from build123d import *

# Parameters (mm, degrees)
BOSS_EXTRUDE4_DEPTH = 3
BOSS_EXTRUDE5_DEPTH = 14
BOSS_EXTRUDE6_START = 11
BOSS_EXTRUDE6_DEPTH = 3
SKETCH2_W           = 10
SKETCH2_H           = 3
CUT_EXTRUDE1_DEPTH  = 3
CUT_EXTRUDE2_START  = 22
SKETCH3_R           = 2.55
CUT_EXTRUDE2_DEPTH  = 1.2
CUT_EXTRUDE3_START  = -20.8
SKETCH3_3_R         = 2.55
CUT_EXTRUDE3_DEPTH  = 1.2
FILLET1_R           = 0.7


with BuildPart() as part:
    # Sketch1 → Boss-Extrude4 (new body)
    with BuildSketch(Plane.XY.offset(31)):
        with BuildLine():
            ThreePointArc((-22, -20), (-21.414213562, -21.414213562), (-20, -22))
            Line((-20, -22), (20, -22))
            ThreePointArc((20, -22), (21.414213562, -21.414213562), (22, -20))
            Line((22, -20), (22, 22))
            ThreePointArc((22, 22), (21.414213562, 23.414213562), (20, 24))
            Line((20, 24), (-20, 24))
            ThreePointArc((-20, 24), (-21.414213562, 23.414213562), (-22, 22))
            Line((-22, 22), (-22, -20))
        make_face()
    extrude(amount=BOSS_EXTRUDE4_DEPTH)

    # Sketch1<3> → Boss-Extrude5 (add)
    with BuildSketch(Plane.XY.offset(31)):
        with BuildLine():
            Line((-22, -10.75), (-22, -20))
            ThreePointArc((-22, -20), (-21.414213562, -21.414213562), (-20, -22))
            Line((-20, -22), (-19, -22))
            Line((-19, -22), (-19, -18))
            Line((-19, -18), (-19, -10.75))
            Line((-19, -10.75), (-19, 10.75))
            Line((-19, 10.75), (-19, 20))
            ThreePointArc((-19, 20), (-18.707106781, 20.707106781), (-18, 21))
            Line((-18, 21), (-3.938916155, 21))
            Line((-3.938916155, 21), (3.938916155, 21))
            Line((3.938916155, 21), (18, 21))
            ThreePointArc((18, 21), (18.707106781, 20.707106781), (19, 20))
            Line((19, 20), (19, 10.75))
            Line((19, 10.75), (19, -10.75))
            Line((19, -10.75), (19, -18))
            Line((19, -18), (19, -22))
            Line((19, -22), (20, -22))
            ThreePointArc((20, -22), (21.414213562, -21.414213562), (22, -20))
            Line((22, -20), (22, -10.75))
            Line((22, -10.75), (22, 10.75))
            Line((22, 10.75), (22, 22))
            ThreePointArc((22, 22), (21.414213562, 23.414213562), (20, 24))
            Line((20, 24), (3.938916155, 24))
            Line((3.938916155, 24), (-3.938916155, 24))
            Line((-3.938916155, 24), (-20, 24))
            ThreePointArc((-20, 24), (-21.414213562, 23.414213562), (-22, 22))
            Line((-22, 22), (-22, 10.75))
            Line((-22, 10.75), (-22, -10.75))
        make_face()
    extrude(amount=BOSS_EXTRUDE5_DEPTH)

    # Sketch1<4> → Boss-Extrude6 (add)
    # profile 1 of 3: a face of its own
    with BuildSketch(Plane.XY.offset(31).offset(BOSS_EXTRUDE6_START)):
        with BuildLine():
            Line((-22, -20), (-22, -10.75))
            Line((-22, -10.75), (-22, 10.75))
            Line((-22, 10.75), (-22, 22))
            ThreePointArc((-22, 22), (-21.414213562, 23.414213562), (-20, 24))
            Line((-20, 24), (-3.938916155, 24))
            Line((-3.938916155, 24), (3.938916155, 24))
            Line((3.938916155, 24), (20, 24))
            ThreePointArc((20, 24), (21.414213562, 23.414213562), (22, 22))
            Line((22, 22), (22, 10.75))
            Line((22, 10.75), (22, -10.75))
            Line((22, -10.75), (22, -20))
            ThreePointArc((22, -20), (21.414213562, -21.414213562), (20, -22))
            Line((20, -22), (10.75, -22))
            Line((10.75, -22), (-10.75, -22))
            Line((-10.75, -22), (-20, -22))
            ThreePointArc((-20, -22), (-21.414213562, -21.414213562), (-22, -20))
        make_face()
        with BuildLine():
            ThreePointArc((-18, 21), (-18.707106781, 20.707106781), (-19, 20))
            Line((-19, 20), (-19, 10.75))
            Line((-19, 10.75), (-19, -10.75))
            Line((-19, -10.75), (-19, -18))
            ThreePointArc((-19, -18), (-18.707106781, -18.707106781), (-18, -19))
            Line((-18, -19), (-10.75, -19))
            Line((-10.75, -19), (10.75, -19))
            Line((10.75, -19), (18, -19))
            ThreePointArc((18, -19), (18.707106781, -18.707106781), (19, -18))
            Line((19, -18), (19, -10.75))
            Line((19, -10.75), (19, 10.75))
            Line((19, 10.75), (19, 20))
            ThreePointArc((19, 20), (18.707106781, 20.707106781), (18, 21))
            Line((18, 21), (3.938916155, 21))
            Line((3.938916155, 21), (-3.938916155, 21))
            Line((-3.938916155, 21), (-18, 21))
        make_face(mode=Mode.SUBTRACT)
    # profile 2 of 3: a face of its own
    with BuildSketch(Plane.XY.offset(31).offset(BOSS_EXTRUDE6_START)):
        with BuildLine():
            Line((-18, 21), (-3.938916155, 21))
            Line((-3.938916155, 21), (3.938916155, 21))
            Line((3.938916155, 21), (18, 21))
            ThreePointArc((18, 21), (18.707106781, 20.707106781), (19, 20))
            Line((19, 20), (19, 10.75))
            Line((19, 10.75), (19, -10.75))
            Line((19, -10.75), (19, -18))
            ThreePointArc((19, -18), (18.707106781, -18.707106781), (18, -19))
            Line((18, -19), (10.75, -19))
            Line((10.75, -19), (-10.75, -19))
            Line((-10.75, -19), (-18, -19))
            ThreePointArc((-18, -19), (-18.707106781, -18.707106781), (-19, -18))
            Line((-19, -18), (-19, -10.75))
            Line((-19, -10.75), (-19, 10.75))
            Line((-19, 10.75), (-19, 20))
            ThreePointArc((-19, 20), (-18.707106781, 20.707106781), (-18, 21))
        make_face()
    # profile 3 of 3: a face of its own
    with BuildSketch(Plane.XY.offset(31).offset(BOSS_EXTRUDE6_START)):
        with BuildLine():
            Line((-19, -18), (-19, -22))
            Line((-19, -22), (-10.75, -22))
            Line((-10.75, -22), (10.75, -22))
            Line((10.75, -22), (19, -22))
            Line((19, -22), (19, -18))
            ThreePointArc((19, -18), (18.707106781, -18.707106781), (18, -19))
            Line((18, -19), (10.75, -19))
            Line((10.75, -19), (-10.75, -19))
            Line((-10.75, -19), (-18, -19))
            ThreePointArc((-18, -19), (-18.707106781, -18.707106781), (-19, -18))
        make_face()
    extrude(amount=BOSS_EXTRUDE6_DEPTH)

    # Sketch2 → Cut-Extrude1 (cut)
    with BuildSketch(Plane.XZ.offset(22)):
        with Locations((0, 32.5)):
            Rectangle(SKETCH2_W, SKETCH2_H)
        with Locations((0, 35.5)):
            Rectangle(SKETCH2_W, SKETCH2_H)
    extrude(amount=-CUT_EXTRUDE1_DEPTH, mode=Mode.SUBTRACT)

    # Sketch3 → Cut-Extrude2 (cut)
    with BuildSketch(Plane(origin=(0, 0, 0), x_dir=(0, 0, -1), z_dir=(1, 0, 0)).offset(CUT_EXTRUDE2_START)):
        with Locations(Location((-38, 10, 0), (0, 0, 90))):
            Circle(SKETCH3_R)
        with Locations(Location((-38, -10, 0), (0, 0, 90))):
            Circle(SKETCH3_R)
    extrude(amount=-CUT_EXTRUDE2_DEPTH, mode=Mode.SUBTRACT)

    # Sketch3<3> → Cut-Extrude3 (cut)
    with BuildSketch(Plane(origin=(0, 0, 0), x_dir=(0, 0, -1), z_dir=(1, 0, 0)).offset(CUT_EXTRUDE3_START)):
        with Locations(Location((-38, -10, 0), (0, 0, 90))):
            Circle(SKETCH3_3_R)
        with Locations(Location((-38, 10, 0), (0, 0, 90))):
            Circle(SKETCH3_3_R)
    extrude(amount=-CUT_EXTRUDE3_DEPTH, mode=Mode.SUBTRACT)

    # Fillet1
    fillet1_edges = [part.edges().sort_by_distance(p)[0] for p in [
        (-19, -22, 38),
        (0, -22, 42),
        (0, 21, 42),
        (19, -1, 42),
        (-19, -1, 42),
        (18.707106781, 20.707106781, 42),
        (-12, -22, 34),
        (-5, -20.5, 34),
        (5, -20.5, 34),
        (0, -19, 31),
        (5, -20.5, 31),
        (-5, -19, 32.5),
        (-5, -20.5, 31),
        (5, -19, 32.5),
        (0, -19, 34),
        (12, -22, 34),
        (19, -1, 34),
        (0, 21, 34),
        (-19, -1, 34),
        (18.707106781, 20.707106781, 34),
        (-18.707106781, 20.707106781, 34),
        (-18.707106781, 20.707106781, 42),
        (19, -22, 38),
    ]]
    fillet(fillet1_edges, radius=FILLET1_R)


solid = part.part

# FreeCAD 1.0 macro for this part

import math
import FreeCAD as App
import Part
import Sketcher


def edges_at(feature, points):
    """Names of the edges that pass closest to the given points."""
    edges = feature.Shape.Edges
    near = lambda p: min(range(len(edges)), key=lambda i: edges[i].distToShape(Part.Vertex(*p))[0])
    return sorted({f"Edge{near(p) + 1}" for p in points})


def add_polygon(sketch, points):
    """Adds a closed chain of lines whose ends are joined by coincident constraints."""
    first, n = sketch.GeometryCount, len(points)
    for a, b in zip(points, points[1:] + points[:1]):
        sketch.addGeometry(Part.LineSegment(App.Vector(*a, 0), App.Vector(*b, 0)), False)
    for i in range(n):
        sketch.addConstraint(Sketcher.Constraint("Coincident", first + i, 2, first + (i + 1) % n, 1))

doc = App.newDocument("Part")
body = doc.addObject("PartDesign::Body", "Body")

sketch1 = body.newObject("Sketcher::SketchObject", "Sketch")
sketch1.AttachmentSupport = (doc.getObject("XY_Plane"), [""])
sketch1.MapMode = "FlatFace"
sketch1.AttachmentOffset = App.Placement(App.Vector(0, 0, 31), App.Rotation())
sketch1.addGeometry([
    Part.ArcOfCircle(Part.Circle(App.Vector(-20, -20, 0), App.Vector(0, 0, 1), 2), math.radians(-180), math.radians(-90)),
    Part.LineSegment(App.Vector(-20, -22, 0), App.Vector(20, -22, 0)),
    Part.ArcOfCircle(Part.Circle(App.Vector(20, -20, 0), App.Vector(0, 0, 1), 2), math.radians(-90), math.radians(0)),
    Part.LineSegment(App.Vector(22, -20, 0), App.Vector(22, 22, 0)),
    Part.ArcOfCircle(Part.Circle(App.Vector(20, 22, 0), App.Vector(0, 0, 1), 2), math.radians(0), math.radians(90)),
    Part.LineSegment(App.Vector(20, 24, 0), App.Vector(-20, 24, 0)),
    Part.ArcOfCircle(Part.Circle(App.Vector(-20, 22, 0), App.Vector(0, 0, 1), 2), math.radians(90), math.radians(180)),
    Part.LineSegment(App.Vector(-22, 22, 0), App.Vector(-22, -20, 0)),
], False)
sketch1.addConstraint([
    Sketcher.Constraint("Tangent", 0, 2, 1, 1),
    Sketcher.Constraint("Tangent", 1, 2, 2, 1),
    Sketcher.Constraint("Tangent", 2, 2, 3, 1),
    Sketcher.Constraint("Tangent", 3, 2, 4, 1),
    Sketcher.Constraint("Tangent", 4, 2, 5, 1),
    Sketcher.Constraint("Tangent", 5, 2, 6, 1),
    Sketcher.Constraint("Tangent", 6, 2, 7, 1),
    Sketcher.Constraint("Tangent", 7, 2, 0, 1),
    Sketcher.Constraint("Horizontal", 1),
    Sketcher.Constraint("Vertical", 3),
    Sketcher.Constraint("Horizontal", 5),
    Sketcher.Constraint("Vertical", 7),
    Sketcher.Constraint("Equal", 0, 2),
    Sketcher.Constraint("Equal", 2, 4),
    Sketcher.Constraint("Equal", 4, 6),
    Sketcher.Constraint("Radius", 0, 2.0),
    Sketcher.Constraint("DistanceX", 1, 1, 1, 2, 40.0),
    Sketcher.Constraint("DistanceY", 3, 1, 3, 2, 42.0),
    Sketcher.Constraint("DistanceX", 0, 3, -1, 1, 20.0),
    Sketcher.Constraint("DistanceY", 0, 3, -1, 1, 20.0),
])
pad1 = body.newObject("PartDesign::Pad", "Pad")
pad1.Profile = sketch1
pad1.Length = 3

sketch2 = body.newObject("Sketcher::SketchObject", "Sketch001")
sketch2.AttachmentSupport = (doc.getObject("XY_Plane"), [""])
sketch2.MapMode = "FlatFace"
sketch2.AttachmentOffset = App.Placement(App.Vector(0, 0, 31), App.Rotation())
sketch2.addGeometry([
    Part.ArcOfCircle(Part.Circle(App.Vector(-20, -20, 0), App.Vector(0, 0, 1), 2), math.radians(-180), math.radians(-90)),
    Part.LineSegment(App.Vector(-20, -22, 0), App.Vector(-19, -22, 0)),
    Part.LineSegment(App.Vector(-19, -22, 0), App.Vector(-19, 20, 0)),
    Part.ArcOfCircle(Part.Circle(App.Vector(-18, 20, 0), App.Vector(0, 0, 1), 1), math.radians(90), math.radians(180)),
    Part.LineSegment(App.Vector(-18, 21, 0), App.Vector(18, 21, 0)),
    Part.ArcOfCircle(Part.Circle(App.Vector(18, 20, 0), App.Vector(0, 0, 1), 1), math.radians(0), math.radians(90)),
    Part.LineSegment(App.Vector(19, 20, 0), App.Vector(19, -22, 0)),
    Part.LineSegment(App.Vector(19, -22, 0), App.Vector(20, -22, 0)),
    Part.ArcOfCircle(Part.Circle(App.Vector(20, -20, 0), App.Vector(0, 0, 1), 2), math.radians(-90), math.radians(0)),
    Part.LineSegment(App.Vector(22, -20, 0), App.Vector(22, 22, 0)),
    Part.ArcOfCircle(Part.Circle(App.Vector(20, 22, 0), App.Vector(0, 0, 1), 2), math.radians(0), math.radians(90)),
    Part.LineSegment(App.Vector(20, 24, 0), App.Vector(-20, 24, 0)),
    Part.ArcOfCircle(Part.Circle(App.Vector(-20, 22, 0), App.Vector(0, 0, 1), 2), math.radians(90), math.radians(180)),
    Part.LineSegment(App.Vector(-22, 22, 0), App.Vector(-22, -20, 0)),
], False)
sketch2.addConstraint([
    Sketcher.Constraint("Tangent", 0, 2, 1, 1),
    Sketcher.Constraint("Coincident", 1, 2, 2, 1),
    Sketcher.Constraint("Tangent", 2, 2, 3, 2),
    Sketcher.Constraint("Tangent", 3, 1, 4, 1),
    Sketcher.Constraint("Tangent", 4, 2, 5, 2),
    Sketcher.Constraint("Tangent", 5, 1, 6, 1),
    Sketcher.Constraint("Coincident", 6, 2, 7, 1),
    Sketcher.Constraint("Tangent", 7, 2, 8, 1),
    Sketcher.Constraint("Tangent", 8, 2, 9, 1),
    Sketcher.Constraint("Tangent", 9, 2, 10, 1),
    Sketcher.Constraint("Tangent", 10, 2, 11, 1),
    Sketcher.Constraint("Tangent", 11, 2, 12, 1),
    Sketcher.Constraint("Tangent", 12, 2, 13, 1),
    Sketcher.Constraint("Tangent", 13, 2, 0, 1),
    Sketcher.Constraint("Horizontal", 1),
    Sketcher.Constraint("Vertical", 2),
    Sketcher.Constraint("Horizontal", 4),
    Sketcher.Constraint("Vertical", 6),
    Sketcher.Constraint("Horizontal", 7),
    Sketcher.Constraint("Vertical", 9),
    Sketcher.Constraint("Horizontal", 11),
    Sketcher.Constraint("Vertical", 13),
    Sketcher.Constraint("Equal", 3, 5),
    Sketcher.Constraint("Equal", 0, 8),
    Sketcher.Constraint("Equal", 8, 10),
    Sketcher.Constraint("Equal", 10, 12),
    Sketcher.Constraint("Symmetric", 0, 3, 8, 3, -2),
    Sketcher.Constraint("Equal", 1, 7),
    Sketcher.Constraint("Equal", 6, 9),
    Sketcher.Constraint("Radius", 0, 2.0),
    Sketcher.Constraint("Radius", 3, 1.0),
    Sketcher.Constraint("DistanceX", 1, 1, 1, 2, 1.0),
    Sketcher.Constraint("DistanceX", 4, 1, 4, 2, 36.0),
    Sketcher.Constraint("DistanceY", 2, 1, 2, 2, 42.0),
    Sketcher.Constraint("DistanceY", 0, 3, -1, 1, 20.0),
])
pad2 = body.newObject("PartDesign::Pad", "Pad001")
pad2.Profile = sketch2
pad2.Length = 14

sketch3 = body.newObject("Sketcher::SketchObject", "Sketch002")
sketch3.AttachmentSupport = (doc.getObject("XY_Plane"), [""])
sketch3.MapMode = "FlatFace"
sketch3.AttachmentOffset = App.Placement(App.Vector(0, 0, 42), App.Rotation())
sketch3.addGeometry([
    Part.ArcOfCircle(Part.Circle(App.Vector(-20, -20, 0), App.Vector(0, 0, 1), 2), math.radians(-180), math.radians(-90)),
    Part.LineSegment(App.Vector(-20, -22, 0), App.Vector(20, -22, 0)),
    Part.ArcOfCircle(Part.Circle(App.Vector(20, -20, 0), App.Vector(0, 0, 1), 2), math.radians(-90), math.radians(0)),
    Part.LineSegment(App.Vector(22, -20, 0), App.Vector(22, 22, 0)),
    Part.ArcOfCircle(Part.Circle(App.Vector(20, 22, 0), App.Vector(0, 0, 1), 2), math.radians(0), math.radians(90)),
    Part.LineSegment(App.Vector(20, 24, 0), App.Vector(-20, 24, 0)),
    Part.ArcOfCircle(Part.Circle(App.Vector(-20, 22, 0), App.Vector(0, 0, 1), 2), math.radians(90), math.radians(180)),
    Part.LineSegment(App.Vector(-22, 22, 0), App.Vector(-22, -20, 0)),
], False)
sketch3.addConstraint([
    Sketcher.Constraint("Tangent", 0, 2, 1, 1),
    Sketcher.Constraint("Tangent", 1, 2, 2, 1),
    Sketcher.Constraint("Tangent", 2, 2, 3, 1),
    Sketcher.Constraint("Tangent", 3, 2, 4, 1),
    Sketcher.Constraint("Tangent", 4, 2, 5, 1),
    Sketcher.Constraint("Tangent", 5, 2, 6, 1),
    Sketcher.Constraint("Tangent", 6, 2, 7, 1),
    Sketcher.Constraint("Tangent", 7, 2, 0, 1),
    Sketcher.Constraint("Horizontal", 1),
    Sketcher.Constraint("Vertical", 3),
    Sketcher.Constraint("Horizontal", 5),
    Sketcher.Constraint("Vertical", 7),
    Sketcher.Constraint("Equal", 0, 2),
    Sketcher.Constraint("Equal", 2, 4),
    Sketcher.Constraint("Equal", 4, 6),
    Sketcher.Constraint("Radius", 0, 2.0),
    Sketcher.Constraint("DistanceX", 1, 1, 1, 2, 40.0),
    Sketcher.Constraint("DistanceY", 3, 1, 3, 2, 42.0),
    Sketcher.Constraint("DistanceX", 0, 3, -1, 1, 20.0),
    Sketcher.Constraint("DistanceY", 0, 3, -1, 1, 20.0),
])
pad3 = body.newObject("PartDesign::Pad", "Pad002")
pad3.Profile = sketch3
pad3.Length = 3

sketch4 = body.newObject("Sketcher::SketchObject", "Sketch003")
sketch4.AttachmentSupport = (doc.getObject("XZ_Plane"), [""])
sketch4.MapMode = "FlatFace"
sketch4.AttachmentOffset = App.Placement(App.Vector(0, 0, 22), App.Rotation())
add_polygon(sketch4, [(-5, 31), (5, 31), (5, 37), (-5, 37)])
sketch4.addConstraint([
    Sketcher.Constraint("Horizontal", 0),
    Sketcher.Constraint("Vertical", 1),
    Sketcher.Constraint("Horizontal", 2),
    Sketcher.Constraint("Vertical", 3),
    Sketcher.Constraint("DistanceX", 0, 1, 0, 2, 10.0),
    Sketcher.Constraint("DistanceY", 1, 1, 1, 2, 6.0),
    Sketcher.Constraint("DistanceX", -1, 1, 0, 2, 5.0),
    Sketcher.Constraint("DistanceY", -1, 1, 0, 2, 31.0),
])
pocket1 = body.newObject("PartDesign::Pocket", "Pocket")
pocket1.Profile = sketch4
pocket1.Length = 3

sketch5 = body.newObject("Sketcher::SketchObject", "Sketch004")
sketch5.AttachmentSupport = (doc.getObject("YZ_Plane"), [""])
sketch5.MapMode = "FlatFace"
sketch5.AttachmentOffset = App.Placement(App.Vector(0, 0, 22), App.Rotation())
sketch5.addGeometry([
    Part.Circle(App.Vector(10, 38, 0), App.Vector(0, 0, 1), 2.55),
    Part.Circle(App.Vector(-10, 38, 0), App.Vector(0, 0, 1), 2.55),
], False)
sketch5.addConstraint([
    Sketcher.Constraint("Equal", 0, 1),
    Sketcher.Constraint("Symmetric", 0, 3, 1, 3, -2),
    Sketcher.Constraint("Diameter", 0, 5.1),
    Sketcher.Constraint("DistanceX", -1, 1, 0, 3, 10.0),
    Sketcher.Constraint("DistanceY", -1, 1, 0, 3, 38.0),
])
pocket2 = body.newObject("PartDesign::Pocket", "Pocket001")
pocket2.Profile = sketch5
pocket2.Length = 1.2

sketch6 = body.newObject("Sketcher::SketchObject", "Sketch005")
sketch6.AttachmentSupport = (doc.getObject("YZ_Plane"), [""])
sketch6.MapMode = "FlatFace"
sketch6.AttachmentOffset = App.Placement(App.Vector(0, 0, -20.8), App.Rotation())
sketch6.addGeometry([
    Part.Circle(App.Vector(-10, 38, 0), App.Vector(0, 0, 1), 2.55),
    Part.Circle(App.Vector(10, 38, 0), App.Vector(0, 0, 1), 2.55),
], False)
sketch6.addConstraint([
    Sketcher.Constraint("Equal", 0, 1),
    Sketcher.Constraint("Symmetric", 0, 3, 1, 3, -2),
    Sketcher.Constraint("Diameter", 0, 5.1),
    Sketcher.Constraint("DistanceX", 0, 3, -1, 1, 10.0),
    Sketcher.Constraint("DistanceY", -1, 1, 0, 3, 38.0),
])
pocket3 = body.newObject("PartDesign::Pocket", "Pocket002")
pocket3.Profile = sketch6
pocket3.Length = 1.2
doc.recompute()

fillet = body.newObject("PartDesign::Fillet", "Fillet")
fillet.Base = (pocket3, edges_at(pocket3, [
    (-19, -22, 38),
    (0, -22, 42),
    (0, 21, 42),
    (19, -1, 42),
    (-19, -1, 42),
    (18.707, 20.707, 42),
    (-12, -22, 34),
    (-5, -20.5, 34),
    (5, -20.5, 34),
    (0, -19, 31),
    (5, -20.5, 31),
    (-5, -19, 32.5),
    (-5, -20.5, 31),
    (5, -19, 32.5),
    (0, -19, 34),
    (12, -22, 34),
    (19, -1, 34),
    (0, 21, 34),
    (-19, -1, 34),
    (18.707, 20.707, 34),
    (-18.707, 20.707, 34),
    (-18.707, 20.707, 42),
    (19, -22, 38),
]))
fillet.Radius = 0.7

doc.recompute()
